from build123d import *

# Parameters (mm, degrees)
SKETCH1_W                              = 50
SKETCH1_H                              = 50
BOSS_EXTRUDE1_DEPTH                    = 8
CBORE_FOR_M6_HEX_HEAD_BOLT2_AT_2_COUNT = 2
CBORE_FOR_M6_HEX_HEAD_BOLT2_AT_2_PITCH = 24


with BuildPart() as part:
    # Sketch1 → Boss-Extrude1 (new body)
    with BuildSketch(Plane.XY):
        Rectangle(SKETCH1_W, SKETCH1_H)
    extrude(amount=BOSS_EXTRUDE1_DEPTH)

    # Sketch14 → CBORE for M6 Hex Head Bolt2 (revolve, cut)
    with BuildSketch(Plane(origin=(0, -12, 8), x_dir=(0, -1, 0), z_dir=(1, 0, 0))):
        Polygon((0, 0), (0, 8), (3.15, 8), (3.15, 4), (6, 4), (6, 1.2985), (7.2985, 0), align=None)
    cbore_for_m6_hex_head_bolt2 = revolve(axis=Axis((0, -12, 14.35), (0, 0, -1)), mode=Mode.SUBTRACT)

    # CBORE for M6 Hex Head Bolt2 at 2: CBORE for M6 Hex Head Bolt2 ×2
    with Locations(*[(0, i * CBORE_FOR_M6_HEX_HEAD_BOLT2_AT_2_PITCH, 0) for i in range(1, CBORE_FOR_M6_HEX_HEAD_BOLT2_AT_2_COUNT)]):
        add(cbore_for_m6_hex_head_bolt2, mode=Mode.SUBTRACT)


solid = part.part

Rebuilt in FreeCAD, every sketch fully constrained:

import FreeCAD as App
import Part
import Sketcher
from FreeCAD import Vector
Q = App.Units.Quantity


def add_polygon(sketch, points):
    """Adds a closed chain of lines whose ends are joined by coincident constraints."""
    first, n = sketch.GeometryCount, len(points)
    for a, b in zip(points, points[1:] + points[:1]):
        sketch.addGeometry(Part.LineSegment(App.Vector(*a, 0), App.Vector(*b, 0)), False)
    for i in range(n):
        sketch.addConstraint(Sketcher.Constraint("Coincident", first + i, 2, first + (i + 1) % n, 1))

doc = App.newDocument("Part")
body = doc.addObject("PartDesign::Body", "Body")

sketch1 = body.newObject("Sketcher::SketchObject", "Sketch")
sketch1.AttachmentSupport = (doc.getObject("XY_Plane"), [""])
sketch1.MapMode = "FlatFace"
add_polygon(sketch1, [(-25, 25), (-25, -25), (25, -25), (25, 25)])
sketch1.addConstraint(Sketcher.Constraint("Vertical", 0))
sketch1.addConstraint(Sketcher.Constraint("Horizontal", 1))
sketch1.addConstraint(Sketcher.Constraint("Vertical", 2))
sketch1.addConstraint(Sketcher.Constraint("Horizontal", 3))
sketch1.addConstraint(Sketcher.Constraint("Symmetric", 0, 2, 2, 2, -1, 1))
sketch1.addConstraint(Sketcher.Constraint("Equal", 3, 0))
sketch1.addConstraint(Sketcher.Constraint("DistanceX", 1, 1, 1, 2, 50.0))
pad1 = body.newObject("PartDesign::Pad", "Pad")
pad1.Profile = sketch1
pad1.Length = 8

sketch2 = body.newObject("Sketcher::SketchObject", "Sketch001")
sketch2.AttachmentSupport = (doc.getObject("YZ_Plane"), [""])
sketch2.MapMode = "FlatFace"
add_polygon(sketch2, [(-12, 0), (-12, 8), (-19.3, 8), (-18, 6.7), (-18, 4), (-15.2, 4), (-15.2, 0)])
sketch2.addGeometry(Part.LineSegment(Vector(-12, 8, 0), Vector(-12, 0, 0)), True)
sketch2.addConstraint(Sketcher.Constraint("Vertical", 0))
sketch2.addConstraint(Sketcher.Constraint("Horizontal", 1))
sketch2.addConstraint(Sketcher.Constraint("Vertical", 3))
sketch2.addConstraint(Sketcher.Constraint("Horizontal", 4))
sketch2.addConstraint(Sketcher.Constraint("Vertical", 5))
sketch2.addConstraint(Sketcher.Constraint("Horizontal", 6))
sketch2.addConstraint(Sketcher.Constraint("Vertical", 7))
sketch2.addConstraint(Sketcher.Constraint("Coincident", 7, 1, 0, 2))
sketch2.addConstraint(Sketcher.Constraint("PointOnObject", 5, 2, -1))
sketch2.addConstraint(Sketcher.Constraint("PointOnObject", 7, 2, -1))
sketch2.addConstraint(Sketcher.Constraint("DistanceY", 0, 1, 0, 2, 8.0))
sketch2.addConstraint(Sketcher.Constraint("DistanceY", 5, 2, 5, 1, 4.0))
sketch2.addConstraint(Sketcher.Constraint("Angle", 2, Q("-45 deg")))
sketch2.addConstraint(Sketcher.Constraint("DistanceX", 0, 2, -1, 1, 12.0))
sketch2.addConstraint(Sketcher.Constraint("DistanceX", 2, 2, -1, 1, 18.0))
sketch2.addConstraint(Sketcher.Constraint("DistanceX", 4, 1, 4, 2, 2.85))
sketch2.addConstraint(Sketcher.Constraint("DistanceX", 1, 2, 1, 1, 7.2985))
groove = body.newObject("PartDesign::Groove", "Groove")
groove.Profile = sketch2
groove.ReferenceAxis = (sketch2, ["Axis0"])
groove.Angle = 360
doc.recompute()

linearpattern = body.newObject("PartDesign::LinearPattern", "LinearPattern")
linearpattern.Originals = [groove]
linearpattern.Direction = (doc.getObject("Y_Axis"), [""])
linearpattern.Mode = "offset"
linearpattern.Offset = 24
linearpattern.Occurrences = 2
body.Tip = linearpattern

doc.recompute()
